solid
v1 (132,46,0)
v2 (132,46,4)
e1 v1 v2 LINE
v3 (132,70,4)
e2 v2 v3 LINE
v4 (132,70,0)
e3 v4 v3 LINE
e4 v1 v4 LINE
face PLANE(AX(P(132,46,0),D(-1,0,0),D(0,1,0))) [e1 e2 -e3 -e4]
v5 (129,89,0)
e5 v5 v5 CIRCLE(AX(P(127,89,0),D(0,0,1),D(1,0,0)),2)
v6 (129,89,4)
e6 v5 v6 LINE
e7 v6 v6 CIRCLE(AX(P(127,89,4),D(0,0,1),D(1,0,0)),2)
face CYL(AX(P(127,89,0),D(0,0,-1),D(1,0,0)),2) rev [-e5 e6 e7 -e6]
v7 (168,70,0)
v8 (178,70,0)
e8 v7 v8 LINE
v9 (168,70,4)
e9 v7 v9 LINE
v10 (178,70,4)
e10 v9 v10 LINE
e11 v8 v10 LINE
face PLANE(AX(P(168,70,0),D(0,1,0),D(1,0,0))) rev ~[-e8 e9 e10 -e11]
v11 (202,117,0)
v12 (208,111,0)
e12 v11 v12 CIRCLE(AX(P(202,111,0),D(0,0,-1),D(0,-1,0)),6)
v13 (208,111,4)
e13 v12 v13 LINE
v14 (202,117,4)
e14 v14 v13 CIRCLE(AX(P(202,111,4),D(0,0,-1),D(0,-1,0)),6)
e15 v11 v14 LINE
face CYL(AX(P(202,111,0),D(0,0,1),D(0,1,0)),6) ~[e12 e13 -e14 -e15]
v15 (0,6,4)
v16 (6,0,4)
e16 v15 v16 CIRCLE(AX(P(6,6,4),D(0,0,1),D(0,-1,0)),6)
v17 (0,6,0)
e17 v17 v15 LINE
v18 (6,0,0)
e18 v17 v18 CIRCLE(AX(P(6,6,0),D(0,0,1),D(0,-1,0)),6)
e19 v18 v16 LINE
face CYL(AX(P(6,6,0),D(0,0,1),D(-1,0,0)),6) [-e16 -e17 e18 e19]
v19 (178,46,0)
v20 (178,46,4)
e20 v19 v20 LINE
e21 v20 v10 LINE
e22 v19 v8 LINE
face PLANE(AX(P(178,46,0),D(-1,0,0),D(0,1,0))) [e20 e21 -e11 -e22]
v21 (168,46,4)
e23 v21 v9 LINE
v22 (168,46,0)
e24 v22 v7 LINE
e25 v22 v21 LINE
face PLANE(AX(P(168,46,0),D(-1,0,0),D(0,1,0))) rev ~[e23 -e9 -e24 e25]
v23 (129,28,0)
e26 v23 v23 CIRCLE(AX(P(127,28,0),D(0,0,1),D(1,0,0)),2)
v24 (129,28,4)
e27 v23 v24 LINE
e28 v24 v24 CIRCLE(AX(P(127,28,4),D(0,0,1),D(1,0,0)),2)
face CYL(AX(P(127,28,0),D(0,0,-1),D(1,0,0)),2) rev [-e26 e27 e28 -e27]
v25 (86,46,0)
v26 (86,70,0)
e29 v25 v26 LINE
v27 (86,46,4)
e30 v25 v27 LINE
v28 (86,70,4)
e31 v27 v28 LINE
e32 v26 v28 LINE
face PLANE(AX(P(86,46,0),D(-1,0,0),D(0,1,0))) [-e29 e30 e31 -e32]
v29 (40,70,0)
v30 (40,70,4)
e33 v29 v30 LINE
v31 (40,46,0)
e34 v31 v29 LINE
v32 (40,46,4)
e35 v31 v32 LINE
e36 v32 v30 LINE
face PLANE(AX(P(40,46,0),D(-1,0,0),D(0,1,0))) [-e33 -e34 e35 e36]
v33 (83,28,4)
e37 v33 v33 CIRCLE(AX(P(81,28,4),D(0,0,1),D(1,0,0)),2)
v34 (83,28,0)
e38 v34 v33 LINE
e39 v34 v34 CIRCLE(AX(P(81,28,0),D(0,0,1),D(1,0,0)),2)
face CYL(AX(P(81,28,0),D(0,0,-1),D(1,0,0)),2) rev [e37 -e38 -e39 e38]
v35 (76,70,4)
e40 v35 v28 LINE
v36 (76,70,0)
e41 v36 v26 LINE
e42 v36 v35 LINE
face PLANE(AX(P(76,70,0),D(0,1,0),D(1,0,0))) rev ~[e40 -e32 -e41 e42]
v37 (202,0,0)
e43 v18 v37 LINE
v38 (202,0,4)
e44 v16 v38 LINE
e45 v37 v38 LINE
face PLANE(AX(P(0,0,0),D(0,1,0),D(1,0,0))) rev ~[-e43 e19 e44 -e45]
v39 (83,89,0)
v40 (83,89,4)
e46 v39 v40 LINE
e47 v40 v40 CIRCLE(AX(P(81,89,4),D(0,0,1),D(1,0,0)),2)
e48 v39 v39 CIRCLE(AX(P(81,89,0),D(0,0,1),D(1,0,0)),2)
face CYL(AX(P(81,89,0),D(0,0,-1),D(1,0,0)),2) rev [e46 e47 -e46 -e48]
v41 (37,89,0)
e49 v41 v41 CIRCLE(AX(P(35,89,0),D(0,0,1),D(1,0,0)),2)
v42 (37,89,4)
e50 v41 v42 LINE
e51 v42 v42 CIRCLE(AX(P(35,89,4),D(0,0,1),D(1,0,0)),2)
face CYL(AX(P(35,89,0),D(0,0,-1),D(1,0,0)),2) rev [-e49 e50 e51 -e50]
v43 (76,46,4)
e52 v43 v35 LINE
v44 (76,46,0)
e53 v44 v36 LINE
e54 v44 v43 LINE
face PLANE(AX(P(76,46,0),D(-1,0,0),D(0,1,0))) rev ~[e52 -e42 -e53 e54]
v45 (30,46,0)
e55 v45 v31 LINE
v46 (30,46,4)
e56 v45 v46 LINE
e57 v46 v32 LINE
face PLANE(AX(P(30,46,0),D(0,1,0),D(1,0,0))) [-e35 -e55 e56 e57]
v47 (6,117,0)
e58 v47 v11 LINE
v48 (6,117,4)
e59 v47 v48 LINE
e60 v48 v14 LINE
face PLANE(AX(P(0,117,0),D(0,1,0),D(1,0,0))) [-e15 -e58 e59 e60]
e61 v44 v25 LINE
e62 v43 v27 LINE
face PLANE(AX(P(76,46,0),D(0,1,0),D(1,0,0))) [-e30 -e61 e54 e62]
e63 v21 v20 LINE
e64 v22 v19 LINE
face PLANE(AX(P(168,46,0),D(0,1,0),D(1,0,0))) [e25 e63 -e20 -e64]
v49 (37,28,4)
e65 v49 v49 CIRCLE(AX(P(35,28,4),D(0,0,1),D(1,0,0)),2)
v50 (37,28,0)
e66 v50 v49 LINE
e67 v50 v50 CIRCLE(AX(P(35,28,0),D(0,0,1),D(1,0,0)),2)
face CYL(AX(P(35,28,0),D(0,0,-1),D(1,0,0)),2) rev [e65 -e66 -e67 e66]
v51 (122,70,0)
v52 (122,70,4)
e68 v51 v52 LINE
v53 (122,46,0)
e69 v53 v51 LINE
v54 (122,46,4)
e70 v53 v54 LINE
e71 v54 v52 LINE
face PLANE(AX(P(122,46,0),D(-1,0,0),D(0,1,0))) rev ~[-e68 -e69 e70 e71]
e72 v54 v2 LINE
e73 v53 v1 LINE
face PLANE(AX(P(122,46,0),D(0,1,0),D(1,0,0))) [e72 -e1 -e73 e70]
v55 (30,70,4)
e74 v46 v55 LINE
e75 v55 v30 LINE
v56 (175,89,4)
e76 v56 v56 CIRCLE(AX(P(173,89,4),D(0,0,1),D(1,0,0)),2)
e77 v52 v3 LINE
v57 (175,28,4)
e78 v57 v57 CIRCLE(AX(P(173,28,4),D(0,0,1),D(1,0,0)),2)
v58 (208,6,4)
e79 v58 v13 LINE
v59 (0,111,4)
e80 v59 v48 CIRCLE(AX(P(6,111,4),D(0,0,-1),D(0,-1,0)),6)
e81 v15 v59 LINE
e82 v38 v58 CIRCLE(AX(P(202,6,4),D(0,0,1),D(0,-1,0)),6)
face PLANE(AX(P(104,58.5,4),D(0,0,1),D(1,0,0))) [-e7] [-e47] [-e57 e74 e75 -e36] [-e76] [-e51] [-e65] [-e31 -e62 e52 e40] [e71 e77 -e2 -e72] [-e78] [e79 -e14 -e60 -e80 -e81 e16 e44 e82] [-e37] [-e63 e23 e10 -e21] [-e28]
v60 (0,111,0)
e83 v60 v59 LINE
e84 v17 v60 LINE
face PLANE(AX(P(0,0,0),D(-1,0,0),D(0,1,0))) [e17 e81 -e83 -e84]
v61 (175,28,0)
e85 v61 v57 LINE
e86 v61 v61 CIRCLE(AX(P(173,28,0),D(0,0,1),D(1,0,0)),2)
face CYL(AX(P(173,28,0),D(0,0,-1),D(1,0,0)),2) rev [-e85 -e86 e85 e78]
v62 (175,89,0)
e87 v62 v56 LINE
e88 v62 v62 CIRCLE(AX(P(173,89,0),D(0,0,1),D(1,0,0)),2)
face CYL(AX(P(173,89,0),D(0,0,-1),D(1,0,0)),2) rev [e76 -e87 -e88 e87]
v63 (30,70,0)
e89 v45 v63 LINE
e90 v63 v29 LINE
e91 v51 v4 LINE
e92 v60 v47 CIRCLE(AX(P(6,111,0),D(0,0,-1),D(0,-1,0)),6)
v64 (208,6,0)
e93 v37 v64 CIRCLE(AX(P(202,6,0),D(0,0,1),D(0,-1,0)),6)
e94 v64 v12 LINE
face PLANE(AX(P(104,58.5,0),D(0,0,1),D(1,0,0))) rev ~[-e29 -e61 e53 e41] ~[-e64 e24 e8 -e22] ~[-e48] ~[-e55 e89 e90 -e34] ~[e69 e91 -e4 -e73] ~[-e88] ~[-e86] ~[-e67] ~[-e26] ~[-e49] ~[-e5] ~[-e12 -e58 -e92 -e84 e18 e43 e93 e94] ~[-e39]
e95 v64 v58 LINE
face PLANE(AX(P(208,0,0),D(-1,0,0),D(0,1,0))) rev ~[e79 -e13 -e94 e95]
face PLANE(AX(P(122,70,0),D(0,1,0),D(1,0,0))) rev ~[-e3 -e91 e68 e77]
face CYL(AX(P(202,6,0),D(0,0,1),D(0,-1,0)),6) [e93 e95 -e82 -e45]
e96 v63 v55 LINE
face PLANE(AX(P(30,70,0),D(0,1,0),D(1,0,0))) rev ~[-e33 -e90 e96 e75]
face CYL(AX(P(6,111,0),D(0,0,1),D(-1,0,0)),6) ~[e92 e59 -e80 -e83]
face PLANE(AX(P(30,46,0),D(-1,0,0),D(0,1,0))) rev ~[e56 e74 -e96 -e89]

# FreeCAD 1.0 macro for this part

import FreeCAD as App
import Part
import Sketcher

V = App.Vector


def edges_at(feature, points):
    """Names of the edges that pass closest to the given points."""
    edges = feature.Shape.Edges
    near = lambda p: min(range(len(edges)), key=lambda i: edges[i].distToShape(Part.Vertex(*p))[0])
    return sorted({f"Edge{near(p) + 1}" for p in points})


def add_polygon(sketch, points):
    """Adds a closed chain of lines whose ends are joined by coincident constraints."""
    first, n = sketch.GeometryCount, len(points)
    for a, b in zip(points, points[1:] + points[:1]):
        sketch.addGeometry(Part.LineSegment(App.Vector(*a, 0), App.Vector(*b, 0)), False)
    for i in range(n):
        sketch.addConstraint(Sketcher.Constraint("Coincident", first + i, 2, first + (i + 1) % n, 1))

doc = App.newDocument("Part")
body = doc.addObject("PartDesign::Body", "Body")

sketch1 = doc.addObject("Sketcher::SketchObject", "Sketch")
body.addObject(sketch1)
sketch1.AttachmentSupport = (doc.XY_Plane, [""])
sketch1.MapMode = "FlatFace"
add_polygon(sketch1, [(0, 117), (0, 0), (208, 0), (208, 117)])
sketch1.addGeometry(Part.Circle(V(35, 28, 0), V(0, 0, 1), 2), False)
sketch1.addGeometry(Part.Circle(V(81, 28, 0), V(0, 0, 1), 2), False)
add_polygon(sketch1, [(40, 46), (30, 46), (30, 70), (40, 70)])
add_polygon(sketch1, [(86, 46), (76, 46), (76, 70), (86, 70)])
sketch1.addGeometry(Part.Circle(V(127, 28, 0), V(0, 0, 1), 2), False)
sketch1.addGeometry(Part.Circle(V(173, 28, 0), V(0, 0, 1), 2), False)
add_polygon(sketch1, [(132, 46), (122, 46), (122, 70), (132, 70)])
add_polygon(sketch1, [(178, 46), (168, 46), (168, 70), (178, 70)])
sketch1.addGeometry(Part.Circle(V(35, 89, 0), V(0, 0, 1), 2), False)
sketch1.addGeometry(Part.Circle(V(81, 89, 0), V(0, 0, 1), 2), False)
sketch1.addGeometry(Part.Circle(V(127, 89, 0), V(0, 0, 1), 2), False)
sketch1.addGeometry(Part.Circle(V(173, 89, 0), V(0, 0, 1), 2), False)
sketch1.addConstraint([
    Sketcher.Constraint("Vertical", 0),
    Sketcher.Constraint("Horizontal", 1),
    Sketcher.Constraint("Vertical", 2),
    Sketcher.Constraint("Horizontal", 3),
    Sketcher.Constraint("Horizontal", 6),
    Sketcher.Constraint("Vertical", 7),
    Sketcher.Constraint("Horizontal", 8),
    Sketcher.Constraint("Vertical", 9),
    Sketcher.Constraint("Horizontal", 10),
    Sketcher.Constraint("Vertical", 11),
    Sketcher.Constraint("Horizontal", 12),
    Sketcher.Constraint("Vertical", 13),
    Sketcher.Constraint("Horizontal", 16),
    Sketcher.Constraint("Vertical", 17),
    Sketcher.Constraint("Horizontal", 18),
    Sketcher.Constraint("Vertical", 19),
    Sketcher.Constraint("Horizontal", 20),
    Sketcher.Constraint("Vertical", 21),
    Sketcher.Constraint("Horizontal", 22),
    Sketcher.Constraint("Vertical", 23),
    Sketcher.Constraint("Coincident", 0, 2, -1, 1),
    Sketcher.Constraint("Equal", 4, 5),
    Sketcher.Constraint("Equal", 5, 14),
    Sketcher.Constraint("Equal", 14, 15),
    Sketcher.Constraint("Equal", 15, 24),
    Sketcher.Constraint("Equal", 24, 25),
    Sketcher.Constraint("Equal", 25, 26),
    Sketcher.Constraint("Equal", 26, 27),
    Sketcher.Constraint("Horizontal", 4, 3, 5, 3),
    Sketcher.Constraint("Horizontal", 5, 3, 14, 3),
    Sketcher.Constraint("Horizontal", 14, 3, 15, 3),
    Sketcher.Constraint("Horizontal", 24, 3, 25, 3),
    Sketcher.Constraint("Horizontal", 25, 3, 26, 3),
    Sketcher.Constraint("Horizontal", 26, 3, 27, 3),
    Sketcher.Constraint("Horizontal", 9, 2, 10, 2),
    Sketcher.Constraint("Horizontal", 8, 2, 11, 2),
    Sketcher.Constraint("Horizontal", 13, 2, 16, 2),
    Sketcher.Constraint("Horizontal", 12, 2, 17, 2),
    Sketcher.Constraint("Horizontal", 19, 2, 20, 2),
    Sketcher.Constraint("Horizontal", 18, 2, 21, 2),
    Sketcher.Constraint("Vertical", 4, 3, 24, 3),
    Sketcher.Constraint("Vertical", 5, 3, 25, 3),
    Sketcher.Constraint("Vertical", 14, 3, 26, 3),
    Sketcher.Constraint("Vertical", 15, 3, 27, 3),
    Sketcher.Constraint("Equal", 8, 10),
    Sketcher.Constraint("Equal", 12, 16),
    Sketcher.Constraint("Equal", 18, 20),
    Sketcher.Constraint("Diameter", 4, 4.0),
    Sketcher.Constraint("DistanceX", 1, 1, 1, 2, 208.0),
    Sketcher.Constraint("DistanceX", 6, 2, 6, 1, 10.0),
    Sketcher.Constraint("DistanceY", 0, 2, 0, 1, 117.0),
    Sketcher.Constraint("DistanceY", 7, 1, 7, 2, 24.0),
    Sketcher.Constraint("DistanceX", -1, 1, 4, 3, 35.0),
    Sketcher.Constraint("DistanceY", -1, 1, 4, 3, 28.0),
    Sketcher.Constraint("DistanceX", -1, 1, 5, 3, 81.0),
    Sketcher.Constraint("DistanceX", -1, 1, 14, 3, 127.0),
    Sketcher.Constraint("DistanceX", -1, 1, 15, 3, 173.0),
    Sketcher.Constraint("DistanceY", -1, 1, 24, 3, 89.0),
    Sketcher.Constraint("DistanceX", -1, 1, 6, 2, 30.0),
    Sketcher.Constraint("DistanceY", -1, 1, 6, 2, 46.0),
    Sketcher.Constraint("DistanceX", -1, 1, 10, 2, 76.0),
    Sketcher.Constraint("DistanceX", -1, 1, 16, 2, 122.0),
    Sketcher.Constraint("DistanceX", -1, 1, 20, 2, 168.0),
])
pad1 = doc.addObject("PartDesign::Pad", "Pad")
body.addObject(pad1)
pad1.Profile = sketch1
pad1.Length = 4
doc.recompute()

fillet = doc.addObject("PartDesign::Fillet", "Fillet")
body.addObject(fillet)
fillet.Base = (pad1, edges_at(pad1, [
    (0, 117, 2),
    (208, 117, 2),
    (208, 0, 2),
    (0, 0, 2),
]))
fillet.Radius = 6

doc.recompute()
